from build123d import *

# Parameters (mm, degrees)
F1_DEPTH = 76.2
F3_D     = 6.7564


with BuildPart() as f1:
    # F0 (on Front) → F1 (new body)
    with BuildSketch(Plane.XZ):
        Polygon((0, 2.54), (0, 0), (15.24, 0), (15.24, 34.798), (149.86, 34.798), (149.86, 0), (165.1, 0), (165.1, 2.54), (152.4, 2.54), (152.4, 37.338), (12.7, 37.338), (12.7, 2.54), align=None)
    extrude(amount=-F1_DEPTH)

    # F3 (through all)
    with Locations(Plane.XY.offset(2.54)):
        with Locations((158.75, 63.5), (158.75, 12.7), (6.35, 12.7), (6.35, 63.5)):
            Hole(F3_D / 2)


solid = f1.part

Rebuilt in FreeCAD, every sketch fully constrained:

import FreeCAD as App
import Part
import Sketcher

V = App.Vector
Q = App.Units.Quantity

doc = App.newDocument("Part")
params = doc.addObject("Spreadsheet::Sheet", "Params")
for row, (alias, value) in enumerate([
    ("sketch1_width", "0.6 in"),
    ("sketch1_width2", "5.3 in"),
    ("sketch1_width3", "0.5 in"),
    ("sketch1_height", "0.1 in"),
    ("sketch1_height2", "1.37 in"),
    ("pad1_length", "3 in"),
    ("sketch2_diameter", "0.266 in"),
    ("hole_diameter", "0.266 in"),
], start=1):
    params.set(f"A{row}", alias)
    params.set(f"B{row}", "=" + value)
    params.setAlias(f"B{row}", alias)

body = doc.addObject("PartDesign::Body", "Body")

sketch1 = body.newObject("Sketcher::SketchObject", "Sketch")
sketch1.AttachmentSupport = (doc.getObject("XZ_Plane"), [""])
sketch1.MapMode = "FlatFace"
sketch1.addGeometry([
    Part.LineSegment(V(0, 2.5, 0), V(0, 0, 0)),
    Part.LineSegment(V(0, 0, 0), V(15.2, 0, 0)),
    Part.LineSegment(V(15.2, 0, 0), V(15.2, 34.8, 0)),
    Part.LineSegment(V(15.2, 34.8, 0), V(149.9, 34.8, 0)),
    Part.LineSegment(V(149.9, 34.8, 0), V(149.9, 0, 0)),
    Part.LineSegment(V(149.9, 0, 0), V(165.1, 0, 0)),
    Part.LineSegment(V(165.1, 0, 0), V(165.1, 2.5, 0)),
    Part.LineSegment(V(165.1, 2.5, 0), V(152.4, 2.5, 0)),
    Part.LineSegment(V(152.4, 2.5, 0), V(152.4, 37.3, 0)),
    Part.LineSegment(V(152.4, 37.3, 0), V(12.7, 37.3, 0)),
    Part.LineSegment(V(12.7, 37.3, 0), V(12.7, 2.5, 0)),
    Part.LineSegment(V(12.7, 2.5, 0), V(0, 2.5, 0)),
], False)
sketch1.addConstraint([
    Sketcher.Constraint("Coincident", 0, 2, 1, 1),
    Sketcher.Constraint("Coincident", 1, 2, 2, 1),
    Sketcher.Constraint("Coincident", 2, 2, 3, 1),
    Sketcher.Constraint("Coincident", 3, 2, 4, 1),
    Sketcher.Constraint("Coincident", 4, 2, 5, 1),
    Sketcher.Constraint("Coincident", 5, 2, 6, 1),
    Sketcher.Constraint("Coincident", 6, 2, 7, 1),
    Sketcher.Constraint("Coincident", 7, 2, 8, 1),
    Sketcher.Constraint("Coincident", 8, 2, 9, 1),
    Sketcher.Constraint("Coincident", 9, 2, 10, 1),
    Sketcher.Constraint("Coincident", 10, 2, 11, 1),
    Sketcher.Constraint("Coincident", 11, 2, 0, 1),
    Sketcher.Constraint("Vertical", 0),
    Sketcher.Constraint("Horizontal", 1),
    Sketcher.Constraint("Vertical", 2),
    Sketcher.Constraint("Horizontal", 3),
    Sketcher.Constraint("Vertical", 4),
    Sketcher.Constraint("Horizontal", 5),
    Sketcher.Constraint("Vertical", 6),
    Sketcher.Constraint("Horizontal", 7),
    Sketcher.Constraint("Vertical", 8),
    Sketcher.Constraint("Horizontal", 9),
    Sketcher.Constraint("Vertical", 10),
    Sketcher.Constraint("Horizontal", 11),
    Sketcher.Constraint("Coincident", 0, 2, -1, 1),
    Sketcher.Constraint("PointOnObject", 4, 2, -1),
    Sketcher.Constraint("Horizontal", 7, 2, 10, 2),
    Sketcher.Constraint("Equal", 1, 5),
    Sketcher.Constraint("Equal", 7, 11),
    Sketcher.Constraint("Equal", 4, 8),
    Sketcher.Constraint("DistanceX", 1, 1, 1, 2, Q("0.6 in")),
    Sketcher.Constraint("DistanceX", 3, 1, 3, 2, Q("5.3 in")),
    Sketcher.Constraint("DistanceX", 7, 2, 7, 1, Q("0.5 in")),
    Sketcher.Constraint("DistanceY", 0, 2, 0, 1, Q("0.1 in")),
    Sketcher.Constraint("DistanceY", 2, 1, 2, 2, Q("1.37 in")),
])
sketch1.setExpression("Constraints[30]", "Params.sketch1_width")
sketch1.setExpression("Constraints[31]", "Params.sketch1_width2")
sketch1.setExpression("Constraints[32]", "Params.sketch1_width3")
sketch1.setExpression("Constraints[33]", "Params.sketch1_height")
sketch1.setExpression("Constraints[34]", "Params.sketch1_height2")
pad1 = body.newObject("PartDesign::Pad", "Pad")
pad1.Profile = sketch1
pad1.setExpression("Length", "Params.pad1_length")
pad1.Reversed = True

sketch2 = body.newObject("Sketcher::SketchObject", "Sketch001")
sketch2.AttachmentSupport = (doc.getObject("XY_Plane"), [""])
sketch2.MapMode = "FlatFace"
sketch2.AttachmentOffset = App.Placement(V(0, 0, 0.1 * 25.4), App.Rotation())
sketch2.addGeometry([
    Part.Circle(V(158.8, 63.5, 0), V(0, 0, 1), 3.4),
    Part.Circle(V(158.8, 12.7, 0), V(0, 0, 1), 3.4),
    Part.Circle(V(6.3, 12.7, 0), V(0, 0, 1), 3.4),
    Part.Circle(V(6.3, 63.5, 0), V(0, 0, 1), 3.4),
], False)
sketch2.addConstraint([
    Sketcher.Constraint("Equal", 0, 1),
    Sketcher.Constraint("Equal", 1, 2),
    Sketcher.Constraint("Equal", 2, 3),
    Sketcher.Constraint("Horizontal", 1, 3, 2, 3),
    Sketcher.Constraint("Horizontal", 0, 3, 3, 3),
    Sketcher.Constraint("Vertical", 0, 3, 1, 3),
    Sketcher.Constraint("Vertical", 2, 3, 3, 3),
    Sketcher.Constraint("Diameter", 0, Q("0.266 in")),
    Sketcher.Constraint("DistanceY", 1, 3, 0, 3, Q("2 in")),
    Sketcher.Constraint("DistanceX", 2, 3, 1, 3, Q("6 in")),
    Sketcher.Constraint("DistanceY", -1, 1, 0, 3, Q("2.5 in")),
    Sketcher.Constraint("DistanceX", -1, 1, 0, 3, Q("6.25 in")),
])
sketch2.setExpression("Constraints[7]", "Params.sketch2_diameter")
doc.recompute()
hole = body.newObject("PartDesign::Hole", "Hole")
hole.Profile = sketch2
hole.ThreadType = "None"
hole.setExpression("Diameter", "Params.hole_diameter")
hole.DepthType = "ThroughAll"

doc.recompute()
